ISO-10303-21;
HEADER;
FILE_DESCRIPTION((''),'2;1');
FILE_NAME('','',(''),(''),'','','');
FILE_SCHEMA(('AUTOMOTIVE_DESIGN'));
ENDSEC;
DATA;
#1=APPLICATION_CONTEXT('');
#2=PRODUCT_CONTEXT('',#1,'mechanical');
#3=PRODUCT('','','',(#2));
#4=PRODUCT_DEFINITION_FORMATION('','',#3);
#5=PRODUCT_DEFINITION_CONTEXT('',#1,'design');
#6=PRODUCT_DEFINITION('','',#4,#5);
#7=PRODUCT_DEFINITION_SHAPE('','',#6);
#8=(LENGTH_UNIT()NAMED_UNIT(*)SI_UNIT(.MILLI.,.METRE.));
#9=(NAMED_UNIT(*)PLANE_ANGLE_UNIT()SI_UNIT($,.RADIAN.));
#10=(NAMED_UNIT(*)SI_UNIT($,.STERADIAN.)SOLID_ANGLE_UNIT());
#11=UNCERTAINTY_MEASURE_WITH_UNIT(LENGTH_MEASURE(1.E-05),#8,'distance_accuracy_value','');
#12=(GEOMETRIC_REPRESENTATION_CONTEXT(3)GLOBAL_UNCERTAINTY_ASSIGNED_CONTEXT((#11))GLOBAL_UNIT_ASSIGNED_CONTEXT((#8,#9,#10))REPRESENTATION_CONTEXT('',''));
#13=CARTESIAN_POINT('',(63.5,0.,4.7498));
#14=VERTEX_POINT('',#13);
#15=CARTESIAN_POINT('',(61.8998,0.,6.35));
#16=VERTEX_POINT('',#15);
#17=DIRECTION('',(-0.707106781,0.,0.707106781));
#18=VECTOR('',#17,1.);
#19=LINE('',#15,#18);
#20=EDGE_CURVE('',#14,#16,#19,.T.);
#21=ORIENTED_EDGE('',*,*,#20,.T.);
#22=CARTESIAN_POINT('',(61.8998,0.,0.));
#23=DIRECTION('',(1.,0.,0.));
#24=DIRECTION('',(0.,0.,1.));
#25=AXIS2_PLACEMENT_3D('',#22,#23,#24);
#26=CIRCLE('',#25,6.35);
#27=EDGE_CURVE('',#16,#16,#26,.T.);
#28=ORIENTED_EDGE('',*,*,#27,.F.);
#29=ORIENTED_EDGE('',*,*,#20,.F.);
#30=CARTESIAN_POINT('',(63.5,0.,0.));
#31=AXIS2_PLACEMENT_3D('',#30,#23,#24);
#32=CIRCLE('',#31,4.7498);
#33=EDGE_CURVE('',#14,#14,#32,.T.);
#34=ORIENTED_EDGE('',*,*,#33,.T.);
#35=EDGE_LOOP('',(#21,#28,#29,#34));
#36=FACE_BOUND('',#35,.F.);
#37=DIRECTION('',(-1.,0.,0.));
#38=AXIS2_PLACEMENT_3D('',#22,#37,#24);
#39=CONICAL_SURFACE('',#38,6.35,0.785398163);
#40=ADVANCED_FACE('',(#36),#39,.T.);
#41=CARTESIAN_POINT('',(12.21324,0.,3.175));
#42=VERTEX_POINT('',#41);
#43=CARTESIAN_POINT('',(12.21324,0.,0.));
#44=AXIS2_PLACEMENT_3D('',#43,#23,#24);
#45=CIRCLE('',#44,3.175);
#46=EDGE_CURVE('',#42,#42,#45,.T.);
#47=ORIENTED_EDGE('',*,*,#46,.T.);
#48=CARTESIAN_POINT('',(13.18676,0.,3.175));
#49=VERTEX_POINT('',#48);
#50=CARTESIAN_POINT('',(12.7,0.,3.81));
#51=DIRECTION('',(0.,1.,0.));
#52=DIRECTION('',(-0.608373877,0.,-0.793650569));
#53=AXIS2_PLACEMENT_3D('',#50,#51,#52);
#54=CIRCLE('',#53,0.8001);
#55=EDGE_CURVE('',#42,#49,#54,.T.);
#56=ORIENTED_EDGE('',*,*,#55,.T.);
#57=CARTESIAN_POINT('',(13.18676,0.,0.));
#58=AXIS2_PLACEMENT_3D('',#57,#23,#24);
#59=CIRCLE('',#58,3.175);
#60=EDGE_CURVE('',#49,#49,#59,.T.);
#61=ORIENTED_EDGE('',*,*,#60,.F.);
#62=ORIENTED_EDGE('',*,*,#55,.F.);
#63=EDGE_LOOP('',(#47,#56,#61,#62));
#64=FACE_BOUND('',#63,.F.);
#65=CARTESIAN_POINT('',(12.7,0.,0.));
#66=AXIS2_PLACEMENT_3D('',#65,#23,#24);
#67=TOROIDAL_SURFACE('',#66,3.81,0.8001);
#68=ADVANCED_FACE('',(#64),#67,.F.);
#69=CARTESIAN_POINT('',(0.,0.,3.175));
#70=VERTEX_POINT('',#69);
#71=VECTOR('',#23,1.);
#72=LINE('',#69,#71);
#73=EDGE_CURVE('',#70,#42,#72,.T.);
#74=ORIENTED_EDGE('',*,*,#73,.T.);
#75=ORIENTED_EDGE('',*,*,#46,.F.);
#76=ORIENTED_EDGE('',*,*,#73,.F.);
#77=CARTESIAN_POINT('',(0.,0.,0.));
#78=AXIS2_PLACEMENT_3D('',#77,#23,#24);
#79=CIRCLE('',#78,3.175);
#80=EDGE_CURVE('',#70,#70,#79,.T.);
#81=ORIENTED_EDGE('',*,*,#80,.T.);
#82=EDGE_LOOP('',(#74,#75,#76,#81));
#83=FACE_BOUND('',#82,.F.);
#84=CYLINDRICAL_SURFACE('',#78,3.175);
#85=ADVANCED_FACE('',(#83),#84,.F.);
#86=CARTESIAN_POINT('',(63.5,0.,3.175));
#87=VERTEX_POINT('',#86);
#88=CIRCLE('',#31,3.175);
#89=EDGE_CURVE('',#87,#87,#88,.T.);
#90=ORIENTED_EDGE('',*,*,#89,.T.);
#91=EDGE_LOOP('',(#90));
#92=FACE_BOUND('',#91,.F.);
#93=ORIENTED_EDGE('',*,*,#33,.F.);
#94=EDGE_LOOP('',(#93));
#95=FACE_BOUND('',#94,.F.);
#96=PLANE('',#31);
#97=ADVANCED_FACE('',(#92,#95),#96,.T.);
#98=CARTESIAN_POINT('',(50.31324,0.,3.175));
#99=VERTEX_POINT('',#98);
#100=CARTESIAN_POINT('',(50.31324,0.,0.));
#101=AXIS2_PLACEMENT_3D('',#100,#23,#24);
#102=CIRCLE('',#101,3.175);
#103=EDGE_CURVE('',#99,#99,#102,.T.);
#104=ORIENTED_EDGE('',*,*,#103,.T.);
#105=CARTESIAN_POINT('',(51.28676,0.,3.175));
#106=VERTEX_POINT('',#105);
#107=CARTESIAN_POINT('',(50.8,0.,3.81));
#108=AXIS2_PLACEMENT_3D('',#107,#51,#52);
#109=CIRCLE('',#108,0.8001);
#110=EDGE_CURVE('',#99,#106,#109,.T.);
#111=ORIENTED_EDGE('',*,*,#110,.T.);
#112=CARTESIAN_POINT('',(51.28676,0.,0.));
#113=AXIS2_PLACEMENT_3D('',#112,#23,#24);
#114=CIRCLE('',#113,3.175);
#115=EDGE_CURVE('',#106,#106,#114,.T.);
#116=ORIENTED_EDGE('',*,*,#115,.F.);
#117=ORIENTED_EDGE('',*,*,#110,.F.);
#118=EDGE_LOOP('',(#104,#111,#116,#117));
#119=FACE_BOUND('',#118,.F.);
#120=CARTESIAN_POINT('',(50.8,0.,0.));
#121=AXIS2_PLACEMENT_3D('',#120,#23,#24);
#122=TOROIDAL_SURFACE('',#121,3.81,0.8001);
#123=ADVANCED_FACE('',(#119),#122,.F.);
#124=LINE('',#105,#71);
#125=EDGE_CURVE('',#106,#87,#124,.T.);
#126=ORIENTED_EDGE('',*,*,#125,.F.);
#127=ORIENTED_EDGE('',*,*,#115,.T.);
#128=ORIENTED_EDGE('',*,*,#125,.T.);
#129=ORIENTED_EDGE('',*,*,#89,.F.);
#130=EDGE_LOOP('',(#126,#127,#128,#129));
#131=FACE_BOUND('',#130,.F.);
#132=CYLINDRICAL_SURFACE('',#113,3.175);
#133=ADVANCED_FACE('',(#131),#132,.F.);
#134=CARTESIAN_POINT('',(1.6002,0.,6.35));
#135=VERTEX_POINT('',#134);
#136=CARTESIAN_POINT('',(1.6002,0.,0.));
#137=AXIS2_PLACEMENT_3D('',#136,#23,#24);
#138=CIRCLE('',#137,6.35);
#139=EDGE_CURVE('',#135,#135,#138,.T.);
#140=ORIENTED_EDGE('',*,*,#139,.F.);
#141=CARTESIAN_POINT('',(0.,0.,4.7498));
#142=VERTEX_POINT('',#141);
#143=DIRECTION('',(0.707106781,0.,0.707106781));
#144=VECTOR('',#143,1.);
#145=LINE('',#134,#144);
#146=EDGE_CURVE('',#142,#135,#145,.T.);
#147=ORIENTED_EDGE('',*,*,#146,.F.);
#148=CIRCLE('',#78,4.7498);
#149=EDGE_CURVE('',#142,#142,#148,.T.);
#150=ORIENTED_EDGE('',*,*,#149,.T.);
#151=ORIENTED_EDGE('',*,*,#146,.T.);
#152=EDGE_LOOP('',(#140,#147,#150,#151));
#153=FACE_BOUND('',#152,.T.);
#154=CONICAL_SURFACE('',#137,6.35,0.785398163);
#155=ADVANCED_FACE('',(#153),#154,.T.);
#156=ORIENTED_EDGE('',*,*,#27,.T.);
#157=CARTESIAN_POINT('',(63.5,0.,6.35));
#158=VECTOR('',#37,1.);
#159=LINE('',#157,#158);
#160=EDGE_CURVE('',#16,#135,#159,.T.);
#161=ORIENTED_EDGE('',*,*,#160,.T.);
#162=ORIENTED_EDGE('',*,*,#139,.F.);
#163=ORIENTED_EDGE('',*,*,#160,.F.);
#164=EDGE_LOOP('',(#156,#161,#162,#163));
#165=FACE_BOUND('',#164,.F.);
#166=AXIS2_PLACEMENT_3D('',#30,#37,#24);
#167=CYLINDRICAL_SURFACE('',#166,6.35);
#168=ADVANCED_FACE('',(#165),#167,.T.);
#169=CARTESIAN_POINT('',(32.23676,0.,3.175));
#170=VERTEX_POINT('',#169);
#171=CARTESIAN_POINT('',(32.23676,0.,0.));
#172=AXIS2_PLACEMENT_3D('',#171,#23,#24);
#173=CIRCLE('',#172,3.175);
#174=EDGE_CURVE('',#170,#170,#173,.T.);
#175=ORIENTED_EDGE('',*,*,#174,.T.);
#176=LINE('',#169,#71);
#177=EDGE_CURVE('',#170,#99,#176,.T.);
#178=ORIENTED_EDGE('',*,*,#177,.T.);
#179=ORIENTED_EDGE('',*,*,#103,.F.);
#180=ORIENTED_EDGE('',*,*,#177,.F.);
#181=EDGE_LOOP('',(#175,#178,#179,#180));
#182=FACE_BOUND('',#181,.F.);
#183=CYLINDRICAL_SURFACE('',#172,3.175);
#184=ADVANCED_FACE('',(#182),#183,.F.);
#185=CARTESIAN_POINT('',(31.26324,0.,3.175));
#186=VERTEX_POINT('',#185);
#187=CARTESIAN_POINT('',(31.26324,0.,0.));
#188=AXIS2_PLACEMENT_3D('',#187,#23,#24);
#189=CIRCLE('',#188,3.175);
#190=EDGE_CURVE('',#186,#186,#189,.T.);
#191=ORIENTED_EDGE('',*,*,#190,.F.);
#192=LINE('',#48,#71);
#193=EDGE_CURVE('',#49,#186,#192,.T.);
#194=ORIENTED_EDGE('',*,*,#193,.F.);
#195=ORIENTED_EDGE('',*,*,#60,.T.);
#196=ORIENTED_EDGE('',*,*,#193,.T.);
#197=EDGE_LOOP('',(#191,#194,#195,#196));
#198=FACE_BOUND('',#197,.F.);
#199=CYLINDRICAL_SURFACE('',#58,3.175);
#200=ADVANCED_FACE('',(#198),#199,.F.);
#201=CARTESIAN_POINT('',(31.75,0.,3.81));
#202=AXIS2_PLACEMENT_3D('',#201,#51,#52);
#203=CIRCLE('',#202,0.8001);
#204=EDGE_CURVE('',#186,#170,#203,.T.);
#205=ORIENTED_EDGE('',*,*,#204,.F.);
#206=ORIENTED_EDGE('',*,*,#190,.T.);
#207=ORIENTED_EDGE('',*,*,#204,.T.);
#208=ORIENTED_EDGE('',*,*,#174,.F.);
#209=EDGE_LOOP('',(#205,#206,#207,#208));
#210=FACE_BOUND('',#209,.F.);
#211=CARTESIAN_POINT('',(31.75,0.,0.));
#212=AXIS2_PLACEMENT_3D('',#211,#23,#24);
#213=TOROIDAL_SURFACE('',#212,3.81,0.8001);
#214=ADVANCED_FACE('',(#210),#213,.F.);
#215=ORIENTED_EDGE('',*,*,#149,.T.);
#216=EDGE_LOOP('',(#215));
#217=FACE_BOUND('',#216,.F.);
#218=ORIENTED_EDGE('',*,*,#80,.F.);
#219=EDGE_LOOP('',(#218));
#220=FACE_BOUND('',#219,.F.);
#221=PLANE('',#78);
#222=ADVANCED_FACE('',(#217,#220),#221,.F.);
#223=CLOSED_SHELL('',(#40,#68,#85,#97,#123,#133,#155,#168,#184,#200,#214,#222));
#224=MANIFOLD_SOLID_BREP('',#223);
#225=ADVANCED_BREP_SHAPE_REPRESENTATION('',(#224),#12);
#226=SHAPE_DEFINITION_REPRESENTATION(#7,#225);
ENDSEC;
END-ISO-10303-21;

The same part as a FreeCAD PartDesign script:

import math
import FreeCAD as App
import Part
import Sketcher

V = App.Vector
Q = App.Units.Quantity


def edges_at(feature, points):
    """Names of the edges that pass closest to the given points."""
    edges = feature.Shape.Edges
    near = lambda p: min(range(len(edges)), key=lambda i: edges[i].distToShape(Part.Vertex(*p))[0])
    return sorted({f"Edge{near(p) + 1}" for p in points})

doc = App.newDocument("Part")
body = doc.addObject("PartDesign::Body", "Body")

# Sketch on XZ plane
sketch1 = body.newObject("Sketcher::SketchObject", "Sketch")
sketch1.AttachmentSupport = (doc.getObject("XZ_Plane"), [""])
sketch1.MapMode = "FlatFace"
sketch1.addGeometry(Part.LineSegment(V(0, 6.3, 0), V(0, 3.2, 0)), False)
sketch1.addGeometry(Part.LineSegment(V(0, 3.2, 0), V(12.2, 3.2, 0)), False)
sketch1.addGeometry(Part.ArcOfCircle(Part.Circle(V(12.7, 3.8, 0), V(0, 0, 1), 0.8), math.radians(-53), math.radians(233)), False)
sketch1.addGeometry(Part.LineSegment(V(13.2, 3.2, 0), V(31.3, 3.2, 0)), False)
sketch1.addGeometry(Part.ArcOfCircle(Part.Circle(V(31.8, 3.8, 0), V(0, 0, 1), 0.8), math.radians(-53), math.radians(233)), False)
sketch1.addGeometry(Part.LineSegment(V(32.2, 3.2, 0), V(50.3, 3.2, 0)), False)
sketch1.addGeometry(Part.ArcOfCircle(Part.Circle(V(50.8, 3.8, 0), V(0, 0, 1), 0.8), math.radians(-53), math.radians(233)), False)
sketch1.addGeometry(Part.LineSegment(V(51.3, 3.2, 0), V(63.5, 3.2, 0)), False)
sketch1.addGeometry(Part.LineSegment(V(63.5, 3.2, 0), V(63.5, 6.3, 0)), False)
sketch1.addGeometry(Part.LineSegment(V(63.5, 6.3, 0), V(0, 6.3, 0)), False)
sketch1.addConstraint(Sketcher.Constraint("Coincident", 0, 2, 1, 1))
sketch1.addConstraint(Sketcher.Constraint("Coincident", 1, 2, 2, 2))
sketch1.addConstraint(Sketcher.Constraint("Coincident", 2, 1, 3, 1))
sketch1.addConstraint(Sketcher.Constraint("Coincident", 3, 2, 4, 2))
sketch1.addConstraint(Sketcher.Constraint("Coincident", 4, 1, 5, 1))
sketch1.addConstraint(Sketcher.Constraint("Coincident", 5, 2, 6, 2))
sketch1.addConstraint(Sketcher.Constraint("Coincident", 6, 1, 7, 1))
sketch1.addConstraint(Sketcher.Constraint("Coincident", 7, 2, 8, 1))
sketch1.addConstraint(Sketcher.Constraint("Coincident", 8, 2, 9, 1))
sketch1.addConstraint(Sketcher.Constraint("Coincident", 9, 2, 0, 1))
sketch1.addConstraint(Sketcher.Constraint("Vertical", 0))
sketch1.addConstraint(Sketcher.Constraint("Horizontal", 1))
sketch1.addConstraint(Sketcher.Constraint("Horizontal", 3))
sketch1.addConstraint(Sketcher.Constraint("Horizontal", 5))
sketch1.addConstraint(Sketcher.Constraint("Horizontal", 7))
sketch1.addConstraint(Sketcher.Constraint("Vertical", 8))
sketch1.addConstraint(Sketcher.Constraint("Horizontal", 9))
sketch1.addConstraint(Sketcher.Constraint("Equal", 2, 4))
sketch1.addConstraint(Sketcher.Constraint("Equal", 4, 6))
sketch1.addConstraint(Sketcher.Constraint("PointOnObject", 0, 2, -2))
sketch1.addConstraint(Sketcher.Constraint("Horizontal", 2, 3, 4, 3))
sketch1.addConstraint(Sketcher.Constraint("Horizontal", 4, 3, 6, 3))
sketch1.addConstraint(Sketcher.Constraint("Horizontal", 1, 2, 2, 1))
sketch1.addConstraint(Sketcher.Constraint("Horizontal", 3, 2, 4, 1))
sketch1.addConstraint(Sketcher.Constraint("Horizontal", 5, 2, 6, 1))
sketch1.addConstraint(Sketcher.Constraint("Equal", 3, 5))
sketch1.addConstraint(Sketcher.Constraint("Equal", 1, 7))
sketch1.addConstraint(Sketcher.Constraint("DistanceX", 9, 2, 9, 1, Q("2.5 in")))
sketch1.addConstraint(Sketcher.Constraint("DistanceX", -1, 1, 6, 3, Q("2 in")))
sketch1.addConstraint(Sketcher.Constraint("Radius", 2, Q("0.0315 in")))
sketch1.addConstraint(Sketcher.Constraint("DistanceY", 6, 3, 8, 2, Q("0.1 in")))
sketch1.addConstraint(Sketcher.Constraint("DistanceY", 0, 2, 0, 1, Q("0.125 in")))
sketch1.addConstraint(Sketcher.Constraint("DistanceY", -1, 1, 2, 3, Q("0.15 in")))
revolution = body.newObject("PartDesign::Revolution", "Revolution")
revolution.Profile = sketch1
revolution.ReferenceAxis = (sketch1, ["H_Axis"])
revolution.Angle = 360
doc.recompute()

chamfer = body.newObject("PartDesign::Chamfer", "Chamfer")
chamfer.Base = (revolution, edges_at(revolution, [(0, 0, -6.35), (63.5, 0, -6.35)]))
chamfer.Size = Q("0.063 in")

doc.recompute()
